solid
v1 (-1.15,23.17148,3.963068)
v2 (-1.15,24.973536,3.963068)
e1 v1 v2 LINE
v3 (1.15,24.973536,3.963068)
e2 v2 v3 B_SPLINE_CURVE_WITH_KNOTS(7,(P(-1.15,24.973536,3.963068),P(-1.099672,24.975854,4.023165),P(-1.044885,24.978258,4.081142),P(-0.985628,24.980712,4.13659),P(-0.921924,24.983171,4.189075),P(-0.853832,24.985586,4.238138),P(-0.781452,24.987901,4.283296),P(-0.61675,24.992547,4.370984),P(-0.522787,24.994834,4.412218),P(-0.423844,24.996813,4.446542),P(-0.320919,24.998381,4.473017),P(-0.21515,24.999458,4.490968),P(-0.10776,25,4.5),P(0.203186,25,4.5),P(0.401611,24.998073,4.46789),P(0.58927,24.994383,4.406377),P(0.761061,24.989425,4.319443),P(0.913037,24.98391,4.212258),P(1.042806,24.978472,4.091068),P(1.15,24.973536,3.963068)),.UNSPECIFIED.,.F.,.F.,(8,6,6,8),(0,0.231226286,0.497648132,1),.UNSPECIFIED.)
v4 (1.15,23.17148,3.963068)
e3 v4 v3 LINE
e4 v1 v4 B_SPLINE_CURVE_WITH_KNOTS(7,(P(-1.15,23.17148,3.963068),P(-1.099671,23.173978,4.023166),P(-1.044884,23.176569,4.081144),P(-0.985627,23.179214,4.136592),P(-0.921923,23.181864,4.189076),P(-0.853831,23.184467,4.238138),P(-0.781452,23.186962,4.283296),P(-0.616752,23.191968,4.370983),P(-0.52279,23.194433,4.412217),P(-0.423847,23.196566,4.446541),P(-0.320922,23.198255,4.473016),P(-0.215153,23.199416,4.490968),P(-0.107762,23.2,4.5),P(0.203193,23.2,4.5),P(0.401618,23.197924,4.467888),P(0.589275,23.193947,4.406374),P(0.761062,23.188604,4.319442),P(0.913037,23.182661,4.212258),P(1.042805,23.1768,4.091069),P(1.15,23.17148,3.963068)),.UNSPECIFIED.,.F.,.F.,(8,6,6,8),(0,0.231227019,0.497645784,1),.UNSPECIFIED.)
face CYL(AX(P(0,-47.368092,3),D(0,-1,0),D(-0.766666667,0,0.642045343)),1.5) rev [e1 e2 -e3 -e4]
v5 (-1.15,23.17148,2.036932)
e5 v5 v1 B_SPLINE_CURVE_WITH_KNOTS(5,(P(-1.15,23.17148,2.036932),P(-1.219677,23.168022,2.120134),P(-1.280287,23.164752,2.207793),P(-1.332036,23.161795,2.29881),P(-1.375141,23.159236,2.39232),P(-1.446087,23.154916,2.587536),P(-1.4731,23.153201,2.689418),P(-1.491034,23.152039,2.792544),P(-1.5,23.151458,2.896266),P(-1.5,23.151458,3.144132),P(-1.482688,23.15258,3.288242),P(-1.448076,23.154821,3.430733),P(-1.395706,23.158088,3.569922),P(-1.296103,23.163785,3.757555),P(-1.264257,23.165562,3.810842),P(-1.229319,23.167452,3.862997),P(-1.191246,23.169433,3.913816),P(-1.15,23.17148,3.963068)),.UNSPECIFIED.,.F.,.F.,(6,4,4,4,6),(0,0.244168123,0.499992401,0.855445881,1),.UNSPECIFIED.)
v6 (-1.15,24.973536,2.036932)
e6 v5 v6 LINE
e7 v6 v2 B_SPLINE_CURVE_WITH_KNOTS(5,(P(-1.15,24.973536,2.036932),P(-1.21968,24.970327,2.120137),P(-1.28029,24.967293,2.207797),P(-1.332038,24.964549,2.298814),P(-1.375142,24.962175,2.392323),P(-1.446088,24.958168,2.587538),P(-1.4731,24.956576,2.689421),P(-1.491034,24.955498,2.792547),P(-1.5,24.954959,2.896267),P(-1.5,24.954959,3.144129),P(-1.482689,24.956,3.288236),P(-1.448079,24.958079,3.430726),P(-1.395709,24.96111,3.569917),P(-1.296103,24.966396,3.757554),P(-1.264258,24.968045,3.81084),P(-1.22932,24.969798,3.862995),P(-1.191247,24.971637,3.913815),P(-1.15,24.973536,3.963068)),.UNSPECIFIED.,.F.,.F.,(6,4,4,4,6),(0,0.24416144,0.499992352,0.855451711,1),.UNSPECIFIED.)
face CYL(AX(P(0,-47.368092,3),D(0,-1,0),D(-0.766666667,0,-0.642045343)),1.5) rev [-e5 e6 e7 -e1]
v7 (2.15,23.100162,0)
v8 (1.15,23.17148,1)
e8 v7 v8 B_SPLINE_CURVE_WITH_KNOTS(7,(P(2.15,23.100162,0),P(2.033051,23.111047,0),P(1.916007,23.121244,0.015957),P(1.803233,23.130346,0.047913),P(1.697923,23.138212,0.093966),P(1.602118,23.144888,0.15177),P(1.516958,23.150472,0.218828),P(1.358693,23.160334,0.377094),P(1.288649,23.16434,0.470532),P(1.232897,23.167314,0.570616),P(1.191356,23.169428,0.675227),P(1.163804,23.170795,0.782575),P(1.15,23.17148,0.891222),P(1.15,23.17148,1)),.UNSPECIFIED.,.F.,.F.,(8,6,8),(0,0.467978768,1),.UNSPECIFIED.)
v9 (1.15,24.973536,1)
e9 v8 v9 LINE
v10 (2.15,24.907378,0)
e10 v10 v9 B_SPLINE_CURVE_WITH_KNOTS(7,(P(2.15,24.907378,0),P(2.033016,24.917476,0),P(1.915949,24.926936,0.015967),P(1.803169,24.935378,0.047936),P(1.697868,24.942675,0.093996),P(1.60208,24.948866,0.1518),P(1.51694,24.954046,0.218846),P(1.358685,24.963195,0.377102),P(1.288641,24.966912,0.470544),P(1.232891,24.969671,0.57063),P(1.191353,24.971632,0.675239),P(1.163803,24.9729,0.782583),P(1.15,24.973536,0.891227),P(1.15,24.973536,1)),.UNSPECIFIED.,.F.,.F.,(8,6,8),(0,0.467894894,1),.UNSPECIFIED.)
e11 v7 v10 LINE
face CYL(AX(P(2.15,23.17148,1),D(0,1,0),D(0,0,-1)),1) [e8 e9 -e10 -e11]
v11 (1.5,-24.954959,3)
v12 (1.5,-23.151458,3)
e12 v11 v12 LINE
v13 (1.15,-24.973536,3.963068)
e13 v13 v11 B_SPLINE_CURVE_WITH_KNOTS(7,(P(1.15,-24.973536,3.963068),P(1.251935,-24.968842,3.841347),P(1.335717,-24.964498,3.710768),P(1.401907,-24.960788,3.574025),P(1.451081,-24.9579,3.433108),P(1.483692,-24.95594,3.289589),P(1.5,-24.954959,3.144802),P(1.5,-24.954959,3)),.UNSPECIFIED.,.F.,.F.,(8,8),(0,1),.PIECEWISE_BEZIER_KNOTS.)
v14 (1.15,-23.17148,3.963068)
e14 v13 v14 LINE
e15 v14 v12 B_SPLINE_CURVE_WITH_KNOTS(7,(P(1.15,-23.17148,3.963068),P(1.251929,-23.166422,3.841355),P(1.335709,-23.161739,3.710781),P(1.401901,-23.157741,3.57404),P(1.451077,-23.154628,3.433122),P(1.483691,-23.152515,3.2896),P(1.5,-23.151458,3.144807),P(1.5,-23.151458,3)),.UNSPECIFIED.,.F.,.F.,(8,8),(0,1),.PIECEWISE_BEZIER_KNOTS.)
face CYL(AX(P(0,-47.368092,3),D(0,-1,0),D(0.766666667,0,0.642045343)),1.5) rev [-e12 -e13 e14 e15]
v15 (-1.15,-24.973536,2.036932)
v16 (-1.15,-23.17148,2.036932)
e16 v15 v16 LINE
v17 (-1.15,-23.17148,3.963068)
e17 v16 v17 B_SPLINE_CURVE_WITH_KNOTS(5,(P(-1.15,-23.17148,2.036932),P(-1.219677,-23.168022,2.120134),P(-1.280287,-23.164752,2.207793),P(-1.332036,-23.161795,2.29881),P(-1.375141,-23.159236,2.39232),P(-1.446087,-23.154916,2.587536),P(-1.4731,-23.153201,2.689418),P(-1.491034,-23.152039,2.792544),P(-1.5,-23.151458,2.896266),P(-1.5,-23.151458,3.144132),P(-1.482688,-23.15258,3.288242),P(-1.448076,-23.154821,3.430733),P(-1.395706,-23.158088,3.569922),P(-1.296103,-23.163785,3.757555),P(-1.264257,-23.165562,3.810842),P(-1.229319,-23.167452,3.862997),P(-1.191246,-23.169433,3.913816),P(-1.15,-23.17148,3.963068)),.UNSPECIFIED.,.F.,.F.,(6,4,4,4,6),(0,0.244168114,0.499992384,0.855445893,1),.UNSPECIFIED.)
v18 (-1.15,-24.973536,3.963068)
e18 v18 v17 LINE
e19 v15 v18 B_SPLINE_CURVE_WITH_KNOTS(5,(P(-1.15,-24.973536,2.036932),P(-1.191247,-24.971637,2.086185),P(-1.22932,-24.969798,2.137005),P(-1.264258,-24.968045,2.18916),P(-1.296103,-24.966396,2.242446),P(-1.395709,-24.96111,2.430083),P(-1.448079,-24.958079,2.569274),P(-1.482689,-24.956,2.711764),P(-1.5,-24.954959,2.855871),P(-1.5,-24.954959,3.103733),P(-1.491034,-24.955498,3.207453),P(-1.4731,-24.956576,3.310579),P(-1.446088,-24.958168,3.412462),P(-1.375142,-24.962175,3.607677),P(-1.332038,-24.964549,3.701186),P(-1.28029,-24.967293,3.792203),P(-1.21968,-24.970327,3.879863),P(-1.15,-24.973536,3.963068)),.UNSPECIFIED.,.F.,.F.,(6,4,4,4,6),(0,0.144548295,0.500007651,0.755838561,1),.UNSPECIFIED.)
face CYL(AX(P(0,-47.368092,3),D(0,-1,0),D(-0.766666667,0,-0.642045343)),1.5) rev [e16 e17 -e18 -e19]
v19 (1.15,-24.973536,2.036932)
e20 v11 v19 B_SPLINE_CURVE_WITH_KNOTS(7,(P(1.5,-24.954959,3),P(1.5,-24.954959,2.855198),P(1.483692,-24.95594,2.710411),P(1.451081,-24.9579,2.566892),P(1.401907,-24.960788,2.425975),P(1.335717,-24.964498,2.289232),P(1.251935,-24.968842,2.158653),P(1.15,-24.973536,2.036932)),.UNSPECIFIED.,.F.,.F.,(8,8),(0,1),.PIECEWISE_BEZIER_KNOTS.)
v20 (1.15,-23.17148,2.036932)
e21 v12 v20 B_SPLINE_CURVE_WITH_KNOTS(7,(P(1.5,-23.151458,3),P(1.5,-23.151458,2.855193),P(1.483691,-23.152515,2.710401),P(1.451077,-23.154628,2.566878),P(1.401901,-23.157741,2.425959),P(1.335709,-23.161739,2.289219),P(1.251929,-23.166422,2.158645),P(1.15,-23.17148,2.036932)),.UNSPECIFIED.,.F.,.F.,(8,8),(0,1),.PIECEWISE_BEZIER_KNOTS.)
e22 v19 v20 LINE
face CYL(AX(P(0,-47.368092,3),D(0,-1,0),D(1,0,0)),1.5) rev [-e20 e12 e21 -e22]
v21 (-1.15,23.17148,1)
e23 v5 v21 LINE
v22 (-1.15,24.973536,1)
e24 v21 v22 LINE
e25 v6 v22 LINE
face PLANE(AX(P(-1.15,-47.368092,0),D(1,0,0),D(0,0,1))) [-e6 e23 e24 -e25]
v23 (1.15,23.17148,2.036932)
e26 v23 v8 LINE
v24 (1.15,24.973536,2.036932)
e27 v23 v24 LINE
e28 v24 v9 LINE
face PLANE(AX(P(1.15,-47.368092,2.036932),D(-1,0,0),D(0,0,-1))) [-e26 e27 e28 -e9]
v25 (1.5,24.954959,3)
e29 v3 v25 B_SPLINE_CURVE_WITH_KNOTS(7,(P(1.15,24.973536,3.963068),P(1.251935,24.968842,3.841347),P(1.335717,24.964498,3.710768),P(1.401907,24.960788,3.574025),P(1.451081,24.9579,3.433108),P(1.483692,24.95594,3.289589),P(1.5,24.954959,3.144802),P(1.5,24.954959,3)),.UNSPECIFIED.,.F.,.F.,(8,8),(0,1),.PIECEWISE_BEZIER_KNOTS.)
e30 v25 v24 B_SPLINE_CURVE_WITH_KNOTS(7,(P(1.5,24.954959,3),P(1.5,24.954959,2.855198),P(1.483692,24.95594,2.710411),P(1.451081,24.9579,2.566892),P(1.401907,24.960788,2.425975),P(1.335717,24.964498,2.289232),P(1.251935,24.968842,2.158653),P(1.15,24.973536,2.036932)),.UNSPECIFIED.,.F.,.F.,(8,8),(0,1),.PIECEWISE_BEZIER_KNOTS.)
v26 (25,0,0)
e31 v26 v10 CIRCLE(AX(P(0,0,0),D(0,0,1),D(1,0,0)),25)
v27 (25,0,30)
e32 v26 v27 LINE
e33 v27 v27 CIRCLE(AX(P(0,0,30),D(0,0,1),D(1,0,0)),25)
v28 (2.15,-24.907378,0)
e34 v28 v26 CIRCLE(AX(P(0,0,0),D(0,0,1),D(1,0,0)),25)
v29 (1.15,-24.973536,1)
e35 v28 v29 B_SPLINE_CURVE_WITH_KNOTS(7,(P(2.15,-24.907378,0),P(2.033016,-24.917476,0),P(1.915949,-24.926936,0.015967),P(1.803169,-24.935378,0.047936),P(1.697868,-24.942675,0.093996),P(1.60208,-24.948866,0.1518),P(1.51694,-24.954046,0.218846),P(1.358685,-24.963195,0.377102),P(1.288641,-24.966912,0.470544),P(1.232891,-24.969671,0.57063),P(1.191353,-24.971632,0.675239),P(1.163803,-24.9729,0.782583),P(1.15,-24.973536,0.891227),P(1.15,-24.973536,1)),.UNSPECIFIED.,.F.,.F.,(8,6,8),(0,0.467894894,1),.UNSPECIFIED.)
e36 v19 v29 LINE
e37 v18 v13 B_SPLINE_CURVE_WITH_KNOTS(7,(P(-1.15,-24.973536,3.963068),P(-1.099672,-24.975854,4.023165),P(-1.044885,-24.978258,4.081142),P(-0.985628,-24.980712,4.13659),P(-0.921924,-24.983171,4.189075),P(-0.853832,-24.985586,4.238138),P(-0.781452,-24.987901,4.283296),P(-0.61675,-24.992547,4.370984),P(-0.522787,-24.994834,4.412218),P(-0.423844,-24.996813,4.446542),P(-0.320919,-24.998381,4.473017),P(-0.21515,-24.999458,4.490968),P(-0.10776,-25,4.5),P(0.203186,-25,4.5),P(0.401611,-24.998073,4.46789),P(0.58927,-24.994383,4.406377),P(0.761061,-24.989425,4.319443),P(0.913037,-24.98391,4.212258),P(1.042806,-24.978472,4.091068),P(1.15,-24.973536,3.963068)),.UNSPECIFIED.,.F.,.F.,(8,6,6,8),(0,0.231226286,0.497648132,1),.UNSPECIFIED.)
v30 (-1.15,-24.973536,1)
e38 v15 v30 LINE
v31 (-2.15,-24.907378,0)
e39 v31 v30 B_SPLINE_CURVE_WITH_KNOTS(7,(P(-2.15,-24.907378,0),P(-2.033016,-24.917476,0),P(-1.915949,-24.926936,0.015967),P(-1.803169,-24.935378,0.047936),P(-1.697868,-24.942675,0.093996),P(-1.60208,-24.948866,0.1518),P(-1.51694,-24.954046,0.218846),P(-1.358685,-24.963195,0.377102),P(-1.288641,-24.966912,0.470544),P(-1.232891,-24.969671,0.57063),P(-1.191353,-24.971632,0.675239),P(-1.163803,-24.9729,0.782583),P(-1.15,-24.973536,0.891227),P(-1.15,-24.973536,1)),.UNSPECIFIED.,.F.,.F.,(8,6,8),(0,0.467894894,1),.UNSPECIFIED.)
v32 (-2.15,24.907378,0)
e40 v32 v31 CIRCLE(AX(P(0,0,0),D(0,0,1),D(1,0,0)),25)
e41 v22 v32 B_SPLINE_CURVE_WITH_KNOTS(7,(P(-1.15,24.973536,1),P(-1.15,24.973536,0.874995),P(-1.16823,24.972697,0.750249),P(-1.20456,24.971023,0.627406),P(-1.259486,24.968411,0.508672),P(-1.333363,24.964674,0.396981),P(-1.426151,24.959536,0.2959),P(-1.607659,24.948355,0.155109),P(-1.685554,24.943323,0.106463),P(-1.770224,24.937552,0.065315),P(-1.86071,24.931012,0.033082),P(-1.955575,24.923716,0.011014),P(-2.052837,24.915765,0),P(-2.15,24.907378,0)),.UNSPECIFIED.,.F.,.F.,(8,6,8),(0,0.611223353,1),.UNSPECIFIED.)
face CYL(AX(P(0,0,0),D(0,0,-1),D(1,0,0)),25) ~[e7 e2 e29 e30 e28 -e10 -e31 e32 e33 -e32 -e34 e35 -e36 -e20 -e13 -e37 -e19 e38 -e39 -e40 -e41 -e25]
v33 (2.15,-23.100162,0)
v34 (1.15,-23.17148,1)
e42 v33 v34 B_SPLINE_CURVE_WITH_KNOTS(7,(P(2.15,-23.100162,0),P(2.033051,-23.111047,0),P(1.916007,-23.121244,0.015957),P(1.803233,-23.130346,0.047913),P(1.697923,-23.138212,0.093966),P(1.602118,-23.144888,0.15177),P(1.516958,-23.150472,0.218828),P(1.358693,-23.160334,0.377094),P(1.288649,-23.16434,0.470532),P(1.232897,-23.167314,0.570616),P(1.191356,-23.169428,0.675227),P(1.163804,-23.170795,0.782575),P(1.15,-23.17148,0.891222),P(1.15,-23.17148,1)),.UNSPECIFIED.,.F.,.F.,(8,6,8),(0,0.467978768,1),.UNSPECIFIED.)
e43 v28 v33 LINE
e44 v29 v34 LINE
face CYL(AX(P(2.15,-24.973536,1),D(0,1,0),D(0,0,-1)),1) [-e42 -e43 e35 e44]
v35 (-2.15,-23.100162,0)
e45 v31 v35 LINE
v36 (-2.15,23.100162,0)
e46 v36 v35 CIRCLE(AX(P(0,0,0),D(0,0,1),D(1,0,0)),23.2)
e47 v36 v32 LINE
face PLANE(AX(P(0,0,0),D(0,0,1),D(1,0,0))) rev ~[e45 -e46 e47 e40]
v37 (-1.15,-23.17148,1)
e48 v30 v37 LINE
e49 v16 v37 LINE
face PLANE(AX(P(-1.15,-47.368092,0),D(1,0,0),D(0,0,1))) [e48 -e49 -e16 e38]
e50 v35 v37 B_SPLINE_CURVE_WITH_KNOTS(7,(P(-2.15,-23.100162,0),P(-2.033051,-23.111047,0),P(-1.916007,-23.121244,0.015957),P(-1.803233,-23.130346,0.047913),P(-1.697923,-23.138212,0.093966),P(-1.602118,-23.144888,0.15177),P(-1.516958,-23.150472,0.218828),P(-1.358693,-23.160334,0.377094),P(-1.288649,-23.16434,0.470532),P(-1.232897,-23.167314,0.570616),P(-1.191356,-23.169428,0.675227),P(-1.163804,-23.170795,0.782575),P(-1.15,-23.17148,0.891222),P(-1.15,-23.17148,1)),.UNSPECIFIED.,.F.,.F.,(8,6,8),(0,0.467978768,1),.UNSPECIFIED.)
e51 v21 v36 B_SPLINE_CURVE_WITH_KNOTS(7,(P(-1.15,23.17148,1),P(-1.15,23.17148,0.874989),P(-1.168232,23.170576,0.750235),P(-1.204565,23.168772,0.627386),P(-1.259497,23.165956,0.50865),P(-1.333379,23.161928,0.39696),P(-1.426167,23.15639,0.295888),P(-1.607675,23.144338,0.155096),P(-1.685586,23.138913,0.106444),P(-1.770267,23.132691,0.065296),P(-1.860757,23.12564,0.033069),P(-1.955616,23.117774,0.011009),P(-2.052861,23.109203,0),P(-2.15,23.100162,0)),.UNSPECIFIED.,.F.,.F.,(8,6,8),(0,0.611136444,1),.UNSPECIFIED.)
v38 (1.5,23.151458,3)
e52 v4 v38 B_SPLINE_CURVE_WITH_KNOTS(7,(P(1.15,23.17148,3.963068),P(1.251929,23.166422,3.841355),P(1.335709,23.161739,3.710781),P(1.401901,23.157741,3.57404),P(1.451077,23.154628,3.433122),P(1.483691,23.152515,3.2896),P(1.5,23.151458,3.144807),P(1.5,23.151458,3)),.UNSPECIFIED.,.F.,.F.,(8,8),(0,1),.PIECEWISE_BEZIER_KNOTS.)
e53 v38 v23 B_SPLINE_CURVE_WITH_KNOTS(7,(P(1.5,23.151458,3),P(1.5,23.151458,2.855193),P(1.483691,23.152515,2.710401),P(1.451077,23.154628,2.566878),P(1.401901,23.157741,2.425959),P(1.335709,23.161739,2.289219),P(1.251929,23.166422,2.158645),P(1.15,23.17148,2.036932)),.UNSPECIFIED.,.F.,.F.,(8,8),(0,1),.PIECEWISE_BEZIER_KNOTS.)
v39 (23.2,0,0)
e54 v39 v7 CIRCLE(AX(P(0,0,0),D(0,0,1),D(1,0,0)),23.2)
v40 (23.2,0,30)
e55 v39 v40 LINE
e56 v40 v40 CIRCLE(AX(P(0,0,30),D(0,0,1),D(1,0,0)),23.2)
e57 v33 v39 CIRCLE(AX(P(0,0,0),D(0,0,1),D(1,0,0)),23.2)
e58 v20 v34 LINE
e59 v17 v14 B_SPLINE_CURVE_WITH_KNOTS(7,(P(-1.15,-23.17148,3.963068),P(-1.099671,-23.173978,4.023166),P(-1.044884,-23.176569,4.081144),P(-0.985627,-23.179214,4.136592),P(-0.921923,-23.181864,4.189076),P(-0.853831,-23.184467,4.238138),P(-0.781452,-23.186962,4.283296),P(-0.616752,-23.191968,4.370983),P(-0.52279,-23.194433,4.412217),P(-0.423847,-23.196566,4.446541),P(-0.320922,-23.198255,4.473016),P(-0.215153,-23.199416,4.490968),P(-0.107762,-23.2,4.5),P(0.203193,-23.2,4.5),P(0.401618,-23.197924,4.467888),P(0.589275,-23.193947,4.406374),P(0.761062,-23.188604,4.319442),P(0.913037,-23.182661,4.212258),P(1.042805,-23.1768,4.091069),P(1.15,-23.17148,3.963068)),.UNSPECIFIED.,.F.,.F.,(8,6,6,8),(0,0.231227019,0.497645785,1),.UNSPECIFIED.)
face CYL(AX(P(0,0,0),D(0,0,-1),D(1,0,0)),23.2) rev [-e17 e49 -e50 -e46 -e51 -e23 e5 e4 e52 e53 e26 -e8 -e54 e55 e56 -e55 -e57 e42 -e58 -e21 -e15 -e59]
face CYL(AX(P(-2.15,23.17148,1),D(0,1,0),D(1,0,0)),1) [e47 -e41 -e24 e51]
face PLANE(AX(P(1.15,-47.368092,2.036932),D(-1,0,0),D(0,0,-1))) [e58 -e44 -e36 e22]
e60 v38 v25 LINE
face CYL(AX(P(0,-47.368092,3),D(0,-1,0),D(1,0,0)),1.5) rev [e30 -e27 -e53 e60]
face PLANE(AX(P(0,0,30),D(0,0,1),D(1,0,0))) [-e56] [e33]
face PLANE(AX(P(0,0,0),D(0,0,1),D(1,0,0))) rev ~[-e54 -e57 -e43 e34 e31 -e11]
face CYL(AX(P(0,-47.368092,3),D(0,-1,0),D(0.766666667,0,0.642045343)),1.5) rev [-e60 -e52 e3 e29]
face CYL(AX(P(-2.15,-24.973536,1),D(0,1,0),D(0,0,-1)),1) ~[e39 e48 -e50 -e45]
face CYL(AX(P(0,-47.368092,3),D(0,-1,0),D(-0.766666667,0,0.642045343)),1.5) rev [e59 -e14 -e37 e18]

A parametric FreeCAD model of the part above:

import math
import FreeCAD as App
import Part
import Sketcher


def edges_at(feature, points):
    """Names of the edges that pass closest to the given points."""
    edges = feature.Shape.Edges
    near = lambda p: min(range(len(edges)), key=lambda i: edges[i].distToShape(Part.Vertex(*p))[0])
    return sorted({f"Edge{near(p) + 1}" for p in points})

doc = App.newDocument("Part")
body = doc.addObject("PartDesign::Body", "Body")

# Sketch on XY plane
sketch1 = doc.addObject("Sketcher::SketchObject", "Sketch")
body.addObject(sketch1)
sketch1.AttachmentSupport = (doc.XY_Plane, [""])
sketch1.MapMode = "FlatFace"
sketch1.addGeometry(Part.Circle(App.Vector(0, 0, 0), App.Vector(0, 0, 1), 25), False)
sketch1.addGeometry(Part.Circle(App.Vector(0, 0, 0), App.Vector(0, 0, 1), 23.2), False)
sketch1.addConstraint(Sketcher.Constraint("Coincident", 0, 3, -1, 1))
sketch1.addConstraint(Sketcher.Constraint("Coincident", 1, 3, -1, 1))
sketch1.addConstraint(Sketcher.Constraint("Diameter", 0, 50.0))
sketch1.addConstraint(Sketcher.Constraint("Diameter", 1, 46.4))
pad1 = doc.addObject("PartDesign::Pad", "Pad")
body.addObject(pad1)
pad1.Profile = sketch1
pad1.Length = 30

# Sketch on XZ plane
sketch2 = doc.addObject("Sketcher::SketchObject", "Sketch001")
body.addObject(sketch2)
sketch2.AttachmentSupport = (doc.XZ_Plane, [""])
sketch2.MapMode = "FlatFace"
sketch2.addGeometry(Part.LineSegment(App.Vector(-1.15, 0, 0), App.Vector(-1.15, 2.036932, 0)), False)
sketch2.addGeometry(Part.ArcOfCircle(Part.Circle(App.Vector(0, 3, 0), App.Vector(0, 0, 1), 1.5), math.radians(140.055495), math.radians(219.944505)), False)
sketch2.addGeometry(Part.ArcOfCircle(Part.Circle(App.Vector(0, 3, 0), App.Vector(0, 0, 1), 1.5), math.radians(39.944505), math.radians(140.055495)), False)
sketch2.addGeometry(Part.ArcOfCircle(Part.Circle(App.Vector(0, 3, 0), App.Vector(0, 0, 1), 1.5), math.radians(0), math.radians(39.944505)), False)
sketch2.addGeometry(Part.ArcOfCircle(Part.Circle(App.Vector(0, 3, 0), App.Vector(0, 0, 1), 1.5), math.radians(-39.944505), math.radians(0)), False)
sketch2.addGeometry(Part.LineSegment(App.Vector(1.15, 2.036932, 0), App.Vector(1.15, 0, 0)), False)
sketch2.addGeometry(Part.LineSegment(App.Vector(1.15, 0, 0), App.Vector(-1.15, 0, 0)), False)
sketch2.addConstraint(Sketcher.Constraint("Coincident", 0, 2, 1, 2))
sketch2.addConstraint(Sketcher.Constraint("Tangent", 1, 1, 2, 2))
sketch2.addConstraint(Sketcher.Constraint("Tangent", 2, 1, 3, 2))
sketch2.addConstraint(Sketcher.Constraint("Tangent", 3, 1, 4, 2))
sketch2.addConstraint(Sketcher.Constraint("Coincident", 4, 1, 5, 1))
sketch2.addConstraint(Sketcher.Constraint("Coincident", 5, 2, 6, 1))
sketch2.addConstraint(Sketcher.Constraint("Coincident", 6, 2, 0, 1))
sketch2.addConstraint(Sketcher.Constraint("Vertical", 0))
sketch2.addConstraint(Sketcher.Constraint("Vertical", 5))
sketch2.addConstraint(Sketcher.Constraint("Horizontal", 6))
sketch2.addConstraint(Sketcher.Constraint("Coincident", 3, 3, 1, 3))
sketch2.addConstraint(Sketcher.Constraint("Equal", 3, 4))
sketch2.addConstraint(Sketcher.Constraint("Symmetric", 5, 2, 6, 2, -1, 1))
sketch2.addConstraint(Sketcher.Constraint("Symmetric", 1, 1, 2, 1, -2))
sketch2.addConstraint(Sketcher.Constraint("Horizontal", 4, 3, 3, 1))
sketch2.addConstraint(Sketcher.Constraint("Vertical", 0, 2, 1, 1))
sketch2.addConstraint(Sketcher.Constraint("Radius", 1, 1.5))
sketch2.addConstraint(Sketcher.Constraint("DistanceX", 6, 2, 6, 1, 2.3))
sketch2.addConstraint(Sketcher.Constraint("DistanceY", -1, 1, 1, 3, 3.0))
pocket1 = doc.addObject("PartDesign::Pocket", "Pocket")
body.addObject(pocket1)
pocket1.Profile = sketch2
pocket1.Type = "ThroughAll"
pocket1.Midplane = True
doc.recompute()

fillet = doc.addObject("PartDesign::Fillet", "Fillet")
body.addObject(fillet)
fillet.Base = (pocket1, edges_at(pocket1, [
    (-1.15, 24.073, 0),
    (-1.15, -24.073, 0),
    (1.15, -24.073, 0),
    (1.15, 24.073, 0),
]))
fillet.Radius = 1

doc.recompute()
